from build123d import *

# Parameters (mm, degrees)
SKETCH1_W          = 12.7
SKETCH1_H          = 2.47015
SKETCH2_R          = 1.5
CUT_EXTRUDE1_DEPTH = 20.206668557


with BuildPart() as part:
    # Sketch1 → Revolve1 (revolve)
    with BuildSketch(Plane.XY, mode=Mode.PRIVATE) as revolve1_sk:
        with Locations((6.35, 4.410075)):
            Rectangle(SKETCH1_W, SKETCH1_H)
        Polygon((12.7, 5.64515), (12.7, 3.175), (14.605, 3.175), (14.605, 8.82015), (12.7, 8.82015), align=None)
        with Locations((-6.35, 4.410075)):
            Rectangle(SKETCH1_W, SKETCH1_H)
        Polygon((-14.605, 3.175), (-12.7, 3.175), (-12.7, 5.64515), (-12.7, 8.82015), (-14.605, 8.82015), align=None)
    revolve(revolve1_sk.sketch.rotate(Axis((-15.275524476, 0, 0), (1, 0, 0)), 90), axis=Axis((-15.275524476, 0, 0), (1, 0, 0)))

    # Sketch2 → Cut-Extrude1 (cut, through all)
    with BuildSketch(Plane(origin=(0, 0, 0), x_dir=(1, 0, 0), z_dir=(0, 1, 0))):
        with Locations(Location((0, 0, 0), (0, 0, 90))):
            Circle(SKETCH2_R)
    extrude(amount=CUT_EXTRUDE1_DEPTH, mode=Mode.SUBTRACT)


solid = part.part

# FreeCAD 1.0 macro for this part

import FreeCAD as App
import Part
import Sketcher
Q = App.Units.Quantity

doc = App.newDocument("Part")
body = doc.addObject("PartDesign::Body", "Body")

# Sketch on XY plane
sketch1 = body.newObject("Sketcher::SketchObject", "Sketch")
sketch1.AttachmentSupport = (doc.getObject("XY_Plane"), [""])
sketch1.MapMode = "FlatFace"
sketch1.addGeometry([
    Part.LineSegment(App.Vector(14.605, 3.175, 0), App.Vector(14.605, 8.82015, 0)),  # 0
    Part.LineSegment(App.Vector(14.605, 8.82015, 0), App.Vector(12.7, 8.82015, 0)),  # 1
    Part.LineSegment(App.Vector(12.7, 8.82015, 0), App.Vector(12.7, 5.64515, 0)),  # 2
    Part.LineSegment(App.Vector(12.7, 5.64515, 0), App.Vector(-12.7, 5.64515, 0)),  # 3
    Part.LineSegment(App.Vector(-12.7, 5.64515, 0), App.Vector(-12.7, 8.82015, 0)),  # 4
    Part.LineSegment(App.Vector(-12.7, 8.82015, 0), App.Vector(-14.605, 8.82015, 0)),  # 5
    Part.LineSegment(App.Vector(-14.605, 8.82015, 0), App.Vector(-14.605, 3.175, 0)),  # 6
    Part.LineSegment(App.Vector(-14.605, 3.175, 0), App.Vector(14.605, 3.175, 0)),  # 7
], False)
sketch1.addConstraint([
    Sketcher.Constraint("Coincident", 0, 2, 1, 1),
    Sketcher.Constraint("Coincident", 1, 2, 2, 1),
    Sketcher.Constraint("Coincident", 2, 2, 3, 1),
    Sketcher.Constraint("Coincident", 3, 2, 4, 1),
    Sketcher.Constraint("Coincident", 4, 2, 5, 1),
    Sketcher.Constraint("Coincident", 5, 2, 6, 1),
    Sketcher.Constraint("Coincident", 6, 2, 7, 1),
    Sketcher.Constraint("Coincident", 7, 2, 0, 1),
    Sketcher.Constraint("Vertical", 0),
    Sketcher.Constraint("Horizontal", 1),
    Sketcher.Constraint("Vertical", 2),
    Sketcher.Constraint("Horizontal", 3),
    Sketcher.Constraint("Vertical", 4),
    Sketcher.Constraint("Horizontal", 5),
    Sketcher.Constraint("Vertical", 6),
    Sketcher.Constraint("Horizontal", 7),
    Sketcher.Constraint("Symmetric", 1, 2, 4, 2, -2),
    Sketcher.Constraint("Equal", 1, 5),
    Sketcher.Constraint("DistanceX", 3, 2, 3, 1, Q("1 in")),
    Sketcher.Constraint("DistanceX", 7, 1, 7, 2, Q("1.15 in")),
    Sketcher.Constraint("DistanceY", 2, 2, 2, 1, Q("0.125 in")),
    Sketcher.Constraint("DistanceY", -1, 1, 6, 2, Q("0.125 in")),
    Sketcher.Constraint("DistanceY", 0, 1, 0, 2, Q("5.64515 mm")),
])
revolution = body.newObject("PartDesign::Revolution", "Revolution")
revolution.Profile = sketch1
revolution.ReferenceAxis = (sketch1, ["H_Axis"])
revolution.Angle = 360

# Sketch on XZ plane
sketch2 = body.newObject("Sketcher::SketchObject", "Sketch001")
sketch2.AttachmentSupport = (doc.getObject("XZ_Plane"), [""])
sketch2.MapMode = "FlatFace"
sketch2.addGeometry(Part.Circle(App.Vector(0, 0, 0), App.Vector(0, 0, 1), 1.5), False)
sketch2.addConstraint([
    Sketcher.Constraint("Coincident", 0, 3, -1, 1),
    Sketcher.Constraint("Diameter", 0, Q("3 mm")),
])
pocket1 = body.newObject("PartDesign::Pocket", "Pocket")
pocket1.Profile = sketch2
pocket1.Type = "ThroughAll"

doc.recompute()
